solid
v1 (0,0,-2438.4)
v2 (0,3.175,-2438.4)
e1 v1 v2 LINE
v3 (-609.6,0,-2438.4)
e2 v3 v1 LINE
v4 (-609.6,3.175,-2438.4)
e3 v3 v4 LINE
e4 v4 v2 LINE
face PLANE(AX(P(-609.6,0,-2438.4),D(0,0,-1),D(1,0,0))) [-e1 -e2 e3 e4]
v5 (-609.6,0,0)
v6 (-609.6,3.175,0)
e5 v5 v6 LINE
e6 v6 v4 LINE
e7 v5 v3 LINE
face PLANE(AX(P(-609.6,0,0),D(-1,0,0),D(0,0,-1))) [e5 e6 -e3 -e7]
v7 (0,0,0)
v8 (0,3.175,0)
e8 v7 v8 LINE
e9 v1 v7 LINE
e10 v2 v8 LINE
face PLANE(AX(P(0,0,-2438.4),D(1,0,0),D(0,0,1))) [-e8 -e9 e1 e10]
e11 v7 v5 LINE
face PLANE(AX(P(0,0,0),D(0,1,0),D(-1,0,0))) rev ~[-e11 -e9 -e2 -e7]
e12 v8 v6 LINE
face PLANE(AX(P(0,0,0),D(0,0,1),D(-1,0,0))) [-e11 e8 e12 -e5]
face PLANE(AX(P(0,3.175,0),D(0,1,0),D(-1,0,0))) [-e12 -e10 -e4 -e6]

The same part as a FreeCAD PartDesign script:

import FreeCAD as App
import Part
import Sketcher

V = App.Vector
Q = App.Units.Quantity

doc = App.newDocument("Part")
body = doc.addObject("PartDesign::Body", "Body")

sketch1 = body.newObject("Sketcher::SketchObject", "Sketch")
sketch1.AttachmentSupport = (doc.getObject("XZ_Plane"), [""])
sketch1.MapMode = "FlatFace"
sketch1.addGeometry([
    Part.LineSegment(V(-609.6, 0, 0), V(0, 0, 0)),
    Part.LineSegment(V(0, 0, 0), V(0, -2438.4, 0)),
    Part.LineSegment(V(0, -2438.4, 0), V(-609.6, -2438.4, 0)),
    Part.LineSegment(V(-609.6, -2438.4, 0), V(-609.6, 0, 0)),
], False)
sketch1.addConstraint([
    Sketcher.Constraint("Coincident", 0, 2, 1, 1),
    Sketcher.Constraint("Coincident", 1, 2, 2, 1),
    Sketcher.Constraint("Coincident", 2, 2, 3, 1),
    Sketcher.Constraint("Coincident", 3, 2, 0, 1),
    Sketcher.Constraint("Horizontal", 0),
    Sketcher.Constraint("Vertical", 1),
    Sketcher.Constraint("Horizontal", 2),
    Sketcher.Constraint("Vertical", 3),
    Sketcher.Constraint("Coincident", 0, 2, -1, 1),
    Sketcher.Constraint("DistanceX", 0, 1, 0, 2, Q("24 in")),
    Sketcher.Constraint("DistanceY", 1, 2, 1, 1, Q("96 in")),
])
pad1 = body.newObject("PartDesign::Pad", "Pad")
pad1.Profile = sketch1
pad1.Length = Q("0.125 in")
pad1.Reversed = True

doc.recompute()
